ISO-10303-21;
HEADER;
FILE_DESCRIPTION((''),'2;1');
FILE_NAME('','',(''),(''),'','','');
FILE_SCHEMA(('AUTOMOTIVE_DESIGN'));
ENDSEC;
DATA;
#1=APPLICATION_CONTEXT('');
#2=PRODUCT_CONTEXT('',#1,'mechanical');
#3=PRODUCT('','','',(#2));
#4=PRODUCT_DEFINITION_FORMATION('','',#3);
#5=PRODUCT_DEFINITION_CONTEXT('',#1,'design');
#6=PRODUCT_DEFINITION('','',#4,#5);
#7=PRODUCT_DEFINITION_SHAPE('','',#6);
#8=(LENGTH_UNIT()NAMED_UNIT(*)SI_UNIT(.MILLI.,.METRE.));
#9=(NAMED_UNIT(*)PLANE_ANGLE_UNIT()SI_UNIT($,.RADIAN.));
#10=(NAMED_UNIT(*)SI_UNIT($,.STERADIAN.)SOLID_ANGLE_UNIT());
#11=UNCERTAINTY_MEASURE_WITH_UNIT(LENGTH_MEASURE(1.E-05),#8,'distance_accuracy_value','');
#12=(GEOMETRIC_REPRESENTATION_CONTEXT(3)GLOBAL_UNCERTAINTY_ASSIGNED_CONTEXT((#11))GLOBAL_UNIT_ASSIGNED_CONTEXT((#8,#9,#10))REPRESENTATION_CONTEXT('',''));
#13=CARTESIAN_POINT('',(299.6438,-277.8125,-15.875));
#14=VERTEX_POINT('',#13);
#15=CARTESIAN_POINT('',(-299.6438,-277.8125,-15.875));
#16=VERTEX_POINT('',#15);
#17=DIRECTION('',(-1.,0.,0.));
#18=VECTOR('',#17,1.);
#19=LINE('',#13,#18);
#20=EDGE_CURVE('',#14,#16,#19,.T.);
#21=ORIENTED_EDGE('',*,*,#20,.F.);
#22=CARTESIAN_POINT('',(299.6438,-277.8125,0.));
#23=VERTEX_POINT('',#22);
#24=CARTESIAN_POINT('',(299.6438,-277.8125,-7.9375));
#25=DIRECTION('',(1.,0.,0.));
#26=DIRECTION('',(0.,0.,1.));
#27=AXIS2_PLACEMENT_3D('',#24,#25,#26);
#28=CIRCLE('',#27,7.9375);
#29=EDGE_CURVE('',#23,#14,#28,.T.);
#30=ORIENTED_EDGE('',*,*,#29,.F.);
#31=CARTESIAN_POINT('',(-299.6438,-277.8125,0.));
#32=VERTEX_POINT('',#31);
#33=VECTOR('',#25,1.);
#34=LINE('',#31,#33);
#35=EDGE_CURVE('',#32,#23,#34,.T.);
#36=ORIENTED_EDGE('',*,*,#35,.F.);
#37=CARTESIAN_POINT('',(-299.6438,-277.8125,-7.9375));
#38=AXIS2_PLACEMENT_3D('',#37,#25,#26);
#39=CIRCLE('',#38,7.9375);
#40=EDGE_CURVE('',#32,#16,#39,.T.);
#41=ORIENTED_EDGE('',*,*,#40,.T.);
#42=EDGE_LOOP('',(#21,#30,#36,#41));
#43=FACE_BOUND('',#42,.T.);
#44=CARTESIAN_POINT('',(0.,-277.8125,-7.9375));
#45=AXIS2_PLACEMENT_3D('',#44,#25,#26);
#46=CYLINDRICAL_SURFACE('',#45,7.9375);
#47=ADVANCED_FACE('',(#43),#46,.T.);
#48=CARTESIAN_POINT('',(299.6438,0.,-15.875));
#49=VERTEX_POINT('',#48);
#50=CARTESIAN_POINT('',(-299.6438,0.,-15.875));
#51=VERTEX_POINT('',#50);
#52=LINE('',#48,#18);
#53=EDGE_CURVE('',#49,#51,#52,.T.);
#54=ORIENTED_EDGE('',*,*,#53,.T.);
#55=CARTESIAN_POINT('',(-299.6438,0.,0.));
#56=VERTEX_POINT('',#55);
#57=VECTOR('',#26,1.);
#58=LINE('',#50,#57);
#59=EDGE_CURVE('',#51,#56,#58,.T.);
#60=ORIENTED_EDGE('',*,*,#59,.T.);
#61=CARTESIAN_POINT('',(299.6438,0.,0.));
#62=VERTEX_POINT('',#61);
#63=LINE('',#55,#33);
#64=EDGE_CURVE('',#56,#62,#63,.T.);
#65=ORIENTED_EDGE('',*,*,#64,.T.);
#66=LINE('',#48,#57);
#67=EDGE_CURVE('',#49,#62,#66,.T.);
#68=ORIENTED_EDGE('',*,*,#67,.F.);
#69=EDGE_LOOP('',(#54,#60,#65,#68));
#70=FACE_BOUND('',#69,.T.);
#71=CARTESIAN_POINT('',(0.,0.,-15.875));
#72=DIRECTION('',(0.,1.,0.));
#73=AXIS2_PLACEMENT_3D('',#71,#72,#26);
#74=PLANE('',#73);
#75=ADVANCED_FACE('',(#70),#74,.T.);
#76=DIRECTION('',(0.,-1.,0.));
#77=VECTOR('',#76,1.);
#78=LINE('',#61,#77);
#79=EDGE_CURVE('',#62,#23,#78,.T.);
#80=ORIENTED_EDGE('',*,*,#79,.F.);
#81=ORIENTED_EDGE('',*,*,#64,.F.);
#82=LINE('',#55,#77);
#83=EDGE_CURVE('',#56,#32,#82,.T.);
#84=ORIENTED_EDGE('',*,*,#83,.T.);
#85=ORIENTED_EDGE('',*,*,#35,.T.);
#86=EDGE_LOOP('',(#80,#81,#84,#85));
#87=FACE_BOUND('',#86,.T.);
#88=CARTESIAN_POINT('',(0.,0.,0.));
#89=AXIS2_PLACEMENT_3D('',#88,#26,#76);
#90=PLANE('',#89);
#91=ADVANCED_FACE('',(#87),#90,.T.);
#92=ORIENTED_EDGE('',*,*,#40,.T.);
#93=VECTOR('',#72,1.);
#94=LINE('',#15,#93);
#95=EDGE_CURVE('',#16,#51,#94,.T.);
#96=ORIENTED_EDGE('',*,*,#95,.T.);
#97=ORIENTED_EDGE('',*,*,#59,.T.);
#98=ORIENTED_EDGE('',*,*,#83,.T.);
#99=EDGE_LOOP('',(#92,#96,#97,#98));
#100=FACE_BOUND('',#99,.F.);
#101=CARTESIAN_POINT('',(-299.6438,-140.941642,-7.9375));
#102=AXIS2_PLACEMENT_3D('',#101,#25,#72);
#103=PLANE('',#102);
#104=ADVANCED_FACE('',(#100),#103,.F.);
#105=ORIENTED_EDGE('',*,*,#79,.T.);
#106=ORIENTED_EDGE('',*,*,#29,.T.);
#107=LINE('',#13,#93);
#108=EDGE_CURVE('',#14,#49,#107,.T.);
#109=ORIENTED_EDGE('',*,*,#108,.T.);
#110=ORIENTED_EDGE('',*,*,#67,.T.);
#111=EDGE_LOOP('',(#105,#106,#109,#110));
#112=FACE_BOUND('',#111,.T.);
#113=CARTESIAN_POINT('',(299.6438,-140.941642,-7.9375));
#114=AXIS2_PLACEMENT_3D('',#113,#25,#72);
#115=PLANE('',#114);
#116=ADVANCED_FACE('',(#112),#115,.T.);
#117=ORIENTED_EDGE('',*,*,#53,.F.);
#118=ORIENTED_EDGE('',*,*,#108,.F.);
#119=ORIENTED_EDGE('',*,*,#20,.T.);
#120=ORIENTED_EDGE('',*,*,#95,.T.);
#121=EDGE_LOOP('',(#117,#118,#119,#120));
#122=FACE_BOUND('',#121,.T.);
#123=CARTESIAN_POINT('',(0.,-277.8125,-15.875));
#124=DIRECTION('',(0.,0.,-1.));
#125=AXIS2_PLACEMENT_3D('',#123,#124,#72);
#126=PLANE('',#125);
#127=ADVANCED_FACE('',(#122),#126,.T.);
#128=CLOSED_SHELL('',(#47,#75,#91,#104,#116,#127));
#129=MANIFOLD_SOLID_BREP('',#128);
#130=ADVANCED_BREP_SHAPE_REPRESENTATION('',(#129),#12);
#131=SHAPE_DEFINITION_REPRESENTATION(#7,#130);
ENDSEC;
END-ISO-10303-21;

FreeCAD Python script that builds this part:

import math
import FreeCAD as App
import Part
import Sketcher
Q = App.Units.Quantity

doc = App.newDocument("Part")
body = doc.addObject("PartDesign::Body", "Body")

# Sketch on YZ plane
sketch1 = body.newObject("Sketcher::SketchObject", "Sketch")
sketch1.AttachmentSupport = (doc.getObject("YZ_Plane"), [""])
sketch1.MapMode = "FlatFace"
sketch1.addGeometry(Part.LineSegment(App.Vector(0, -15.875, 0), App.Vector(0, 0, 0)), False)
sketch1.addGeometry(Part.LineSegment(App.Vector(0, 0, 0), App.Vector(-277.8125, 0, 0)), False)
sketch1.addGeometry(Part.ArcOfCircle(Part.Circle(App.Vector(-277.8125, -7.9375, 0), App.Vector(0, 0, 1), 7.9375), math.radians(90), math.radians(270)), False)
sketch1.addGeometry(Part.LineSegment(App.Vector(-277.8125, -15.875, 0), App.Vector(0, -15.875, 0)), False)
sketch1.addConstraint(Sketcher.Constraint("Coincident", 0, 2, 1, 1))
sketch1.addConstraint(Sketcher.Constraint("Tangent", 1, 2, 2, 1))
sketch1.addConstraint(Sketcher.Constraint("Tangent", 2, 2, 3, 1))
sketch1.addConstraint(Sketcher.Constraint("Coincident", 3, 2, 0, 1))
sketch1.addConstraint(Sketcher.Constraint("Vertical", 0))
sketch1.addConstraint(Sketcher.Constraint("Horizontal", 1))
sketch1.addConstraint(Sketcher.Constraint("Horizontal", 3))
sketch1.addConstraint(Sketcher.Constraint("Coincident", 0, 2, -1, 1))
sketch1.addConstraint(Sketcher.Constraint("Radius", 2, Q("0.3125 in")))
sketch1.addConstraint(Sketcher.Constraint("DistanceX", 1, 2, 1, 1, Q("10.9375 in")))
pad1 = body.newObject("PartDesign::Pad", "Pad")
pad1.Profile = sketch1
pad1.Length = Q("23.594 in")
pad1.Midplane = True

doc.recompute()
